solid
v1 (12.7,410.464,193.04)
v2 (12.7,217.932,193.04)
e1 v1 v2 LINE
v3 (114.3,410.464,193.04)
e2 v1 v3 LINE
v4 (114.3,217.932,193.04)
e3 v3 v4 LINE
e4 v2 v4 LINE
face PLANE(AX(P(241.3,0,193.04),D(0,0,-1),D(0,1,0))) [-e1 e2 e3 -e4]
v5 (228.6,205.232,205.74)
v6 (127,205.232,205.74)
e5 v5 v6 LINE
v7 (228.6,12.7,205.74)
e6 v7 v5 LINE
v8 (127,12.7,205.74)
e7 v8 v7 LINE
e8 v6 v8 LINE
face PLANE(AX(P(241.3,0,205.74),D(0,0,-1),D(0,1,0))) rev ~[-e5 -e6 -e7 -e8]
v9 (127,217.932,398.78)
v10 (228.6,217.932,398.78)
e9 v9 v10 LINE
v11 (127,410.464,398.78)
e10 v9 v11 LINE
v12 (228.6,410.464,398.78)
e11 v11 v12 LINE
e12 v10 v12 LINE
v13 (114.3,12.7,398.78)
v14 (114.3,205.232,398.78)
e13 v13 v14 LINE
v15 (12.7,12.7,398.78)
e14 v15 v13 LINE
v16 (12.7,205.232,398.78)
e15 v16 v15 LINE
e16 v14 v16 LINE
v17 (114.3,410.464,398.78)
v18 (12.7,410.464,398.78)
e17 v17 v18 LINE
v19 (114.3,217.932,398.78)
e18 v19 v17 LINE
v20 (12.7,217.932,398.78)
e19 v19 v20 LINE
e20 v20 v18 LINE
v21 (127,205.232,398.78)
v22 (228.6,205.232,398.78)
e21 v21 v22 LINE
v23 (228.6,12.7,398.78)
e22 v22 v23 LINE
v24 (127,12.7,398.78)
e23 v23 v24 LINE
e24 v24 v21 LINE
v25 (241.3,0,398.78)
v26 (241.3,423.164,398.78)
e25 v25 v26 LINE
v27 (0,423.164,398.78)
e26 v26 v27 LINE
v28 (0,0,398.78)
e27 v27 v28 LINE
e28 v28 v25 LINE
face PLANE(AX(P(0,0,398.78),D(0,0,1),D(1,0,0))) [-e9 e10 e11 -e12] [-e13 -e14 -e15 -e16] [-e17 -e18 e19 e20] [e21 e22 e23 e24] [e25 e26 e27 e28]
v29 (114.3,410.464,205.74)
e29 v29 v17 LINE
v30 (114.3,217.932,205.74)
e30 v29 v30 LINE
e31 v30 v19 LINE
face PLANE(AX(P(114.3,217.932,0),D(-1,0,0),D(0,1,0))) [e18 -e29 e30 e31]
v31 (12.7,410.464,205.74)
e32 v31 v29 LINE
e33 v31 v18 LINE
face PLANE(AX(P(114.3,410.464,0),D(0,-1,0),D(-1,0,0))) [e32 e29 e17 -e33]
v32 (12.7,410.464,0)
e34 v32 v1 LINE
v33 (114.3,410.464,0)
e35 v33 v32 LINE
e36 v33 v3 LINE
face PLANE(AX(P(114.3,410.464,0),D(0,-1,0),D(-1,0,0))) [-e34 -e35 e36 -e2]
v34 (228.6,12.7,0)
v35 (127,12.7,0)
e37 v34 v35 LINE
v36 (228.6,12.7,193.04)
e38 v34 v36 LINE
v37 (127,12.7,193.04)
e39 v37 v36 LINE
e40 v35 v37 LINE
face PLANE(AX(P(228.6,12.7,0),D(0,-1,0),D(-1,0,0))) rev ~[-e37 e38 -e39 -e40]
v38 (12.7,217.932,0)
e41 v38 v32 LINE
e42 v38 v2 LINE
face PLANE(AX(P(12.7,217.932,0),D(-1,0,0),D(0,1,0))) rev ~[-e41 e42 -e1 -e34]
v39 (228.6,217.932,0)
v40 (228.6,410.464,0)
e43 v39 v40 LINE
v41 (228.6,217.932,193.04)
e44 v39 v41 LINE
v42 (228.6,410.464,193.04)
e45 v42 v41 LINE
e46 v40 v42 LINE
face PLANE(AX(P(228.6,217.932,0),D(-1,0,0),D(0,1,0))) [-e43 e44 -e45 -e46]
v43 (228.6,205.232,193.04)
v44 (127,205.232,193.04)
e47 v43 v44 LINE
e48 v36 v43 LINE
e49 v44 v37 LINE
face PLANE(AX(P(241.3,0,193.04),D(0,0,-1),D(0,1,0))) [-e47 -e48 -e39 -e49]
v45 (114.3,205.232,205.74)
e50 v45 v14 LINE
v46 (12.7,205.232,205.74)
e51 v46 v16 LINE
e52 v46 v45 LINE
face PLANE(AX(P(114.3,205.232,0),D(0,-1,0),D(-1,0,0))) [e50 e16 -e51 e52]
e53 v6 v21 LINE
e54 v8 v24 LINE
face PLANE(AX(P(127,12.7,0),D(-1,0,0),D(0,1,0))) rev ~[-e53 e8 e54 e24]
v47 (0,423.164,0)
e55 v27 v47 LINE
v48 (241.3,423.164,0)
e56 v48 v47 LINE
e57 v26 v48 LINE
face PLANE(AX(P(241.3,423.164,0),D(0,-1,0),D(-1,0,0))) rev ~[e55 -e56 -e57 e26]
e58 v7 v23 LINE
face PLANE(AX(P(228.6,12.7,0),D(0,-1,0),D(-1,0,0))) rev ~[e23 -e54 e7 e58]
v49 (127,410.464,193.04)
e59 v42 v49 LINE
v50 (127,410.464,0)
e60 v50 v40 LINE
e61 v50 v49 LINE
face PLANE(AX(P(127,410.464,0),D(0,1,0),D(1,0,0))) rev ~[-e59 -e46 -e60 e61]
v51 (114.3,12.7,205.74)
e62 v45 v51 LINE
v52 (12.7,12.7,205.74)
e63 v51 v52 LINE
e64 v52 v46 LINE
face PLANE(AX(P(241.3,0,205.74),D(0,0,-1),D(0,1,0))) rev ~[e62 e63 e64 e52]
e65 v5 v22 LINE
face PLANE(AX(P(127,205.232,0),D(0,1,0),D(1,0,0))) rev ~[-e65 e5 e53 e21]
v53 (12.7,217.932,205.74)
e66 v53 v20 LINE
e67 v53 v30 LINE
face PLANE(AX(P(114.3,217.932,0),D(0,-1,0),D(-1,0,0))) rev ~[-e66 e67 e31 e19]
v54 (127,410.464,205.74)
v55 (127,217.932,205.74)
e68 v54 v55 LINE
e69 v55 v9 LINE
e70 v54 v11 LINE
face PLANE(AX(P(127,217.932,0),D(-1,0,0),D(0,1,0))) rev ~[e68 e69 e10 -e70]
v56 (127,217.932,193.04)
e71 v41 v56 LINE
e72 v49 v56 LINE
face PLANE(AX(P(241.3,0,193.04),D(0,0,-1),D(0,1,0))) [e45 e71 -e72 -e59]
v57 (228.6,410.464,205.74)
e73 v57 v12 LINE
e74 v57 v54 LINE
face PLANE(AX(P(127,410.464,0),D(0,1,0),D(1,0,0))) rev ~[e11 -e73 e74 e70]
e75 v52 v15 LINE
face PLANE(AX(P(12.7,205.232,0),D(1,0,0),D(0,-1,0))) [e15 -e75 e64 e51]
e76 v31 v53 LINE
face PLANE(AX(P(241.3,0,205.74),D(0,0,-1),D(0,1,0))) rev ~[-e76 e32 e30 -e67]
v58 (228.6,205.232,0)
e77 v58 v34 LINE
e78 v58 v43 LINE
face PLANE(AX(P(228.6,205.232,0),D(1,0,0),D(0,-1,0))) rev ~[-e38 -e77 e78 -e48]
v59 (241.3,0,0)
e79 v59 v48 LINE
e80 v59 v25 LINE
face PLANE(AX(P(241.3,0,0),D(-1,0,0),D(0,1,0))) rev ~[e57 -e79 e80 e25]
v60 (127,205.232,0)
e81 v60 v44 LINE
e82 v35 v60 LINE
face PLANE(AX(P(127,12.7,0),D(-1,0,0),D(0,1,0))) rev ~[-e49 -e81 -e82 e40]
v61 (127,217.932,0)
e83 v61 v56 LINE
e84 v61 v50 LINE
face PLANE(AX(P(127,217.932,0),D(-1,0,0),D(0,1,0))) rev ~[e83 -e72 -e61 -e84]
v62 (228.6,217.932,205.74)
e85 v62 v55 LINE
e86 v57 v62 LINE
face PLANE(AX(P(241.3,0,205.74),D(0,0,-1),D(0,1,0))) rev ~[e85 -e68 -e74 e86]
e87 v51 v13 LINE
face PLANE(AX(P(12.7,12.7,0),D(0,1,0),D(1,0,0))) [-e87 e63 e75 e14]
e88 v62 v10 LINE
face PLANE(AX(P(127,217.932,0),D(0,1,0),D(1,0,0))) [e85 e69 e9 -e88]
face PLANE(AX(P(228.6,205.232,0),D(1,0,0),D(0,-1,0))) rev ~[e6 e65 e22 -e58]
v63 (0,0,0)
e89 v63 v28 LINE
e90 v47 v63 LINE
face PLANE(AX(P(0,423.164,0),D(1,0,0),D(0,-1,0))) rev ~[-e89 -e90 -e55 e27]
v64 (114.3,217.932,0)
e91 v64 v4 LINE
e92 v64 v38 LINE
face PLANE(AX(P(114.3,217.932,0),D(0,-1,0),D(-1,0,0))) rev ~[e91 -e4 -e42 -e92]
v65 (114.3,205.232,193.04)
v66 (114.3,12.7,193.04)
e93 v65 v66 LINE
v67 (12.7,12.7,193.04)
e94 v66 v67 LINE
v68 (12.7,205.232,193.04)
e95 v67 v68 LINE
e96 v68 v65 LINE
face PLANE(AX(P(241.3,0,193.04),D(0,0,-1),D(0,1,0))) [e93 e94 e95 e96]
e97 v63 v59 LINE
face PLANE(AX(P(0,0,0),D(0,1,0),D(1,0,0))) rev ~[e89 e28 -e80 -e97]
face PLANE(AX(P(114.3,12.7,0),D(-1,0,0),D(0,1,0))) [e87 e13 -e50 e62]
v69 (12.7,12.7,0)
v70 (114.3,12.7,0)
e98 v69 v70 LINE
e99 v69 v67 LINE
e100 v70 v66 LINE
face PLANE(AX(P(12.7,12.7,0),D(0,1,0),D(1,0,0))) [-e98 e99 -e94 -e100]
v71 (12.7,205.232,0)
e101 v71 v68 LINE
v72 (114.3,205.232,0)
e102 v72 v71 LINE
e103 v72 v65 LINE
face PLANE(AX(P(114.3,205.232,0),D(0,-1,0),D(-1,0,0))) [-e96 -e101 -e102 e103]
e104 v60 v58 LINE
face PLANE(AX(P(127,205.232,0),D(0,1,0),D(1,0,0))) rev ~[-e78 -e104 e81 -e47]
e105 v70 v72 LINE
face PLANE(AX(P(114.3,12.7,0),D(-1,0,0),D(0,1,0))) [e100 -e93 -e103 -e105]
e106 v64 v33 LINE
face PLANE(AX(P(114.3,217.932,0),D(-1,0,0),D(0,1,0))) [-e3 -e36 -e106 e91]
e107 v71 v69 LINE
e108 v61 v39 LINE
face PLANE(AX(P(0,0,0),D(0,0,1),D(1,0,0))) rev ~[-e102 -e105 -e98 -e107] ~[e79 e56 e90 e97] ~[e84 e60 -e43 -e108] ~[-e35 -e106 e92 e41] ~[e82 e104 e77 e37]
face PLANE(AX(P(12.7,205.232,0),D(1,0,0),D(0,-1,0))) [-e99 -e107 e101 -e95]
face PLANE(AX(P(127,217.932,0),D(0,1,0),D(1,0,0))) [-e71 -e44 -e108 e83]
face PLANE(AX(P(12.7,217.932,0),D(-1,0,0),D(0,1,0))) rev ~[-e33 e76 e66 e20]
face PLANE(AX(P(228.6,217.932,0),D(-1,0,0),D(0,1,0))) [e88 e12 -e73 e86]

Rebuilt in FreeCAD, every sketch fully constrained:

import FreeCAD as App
import Part
import Sketcher
from FreeCAD import Vector
Q = App.Units.Quantity


def add_polygon(sketch, points):
    """Adds a closed chain of lines whose ends are joined by coincident constraints."""
    first, n = sketch.GeometryCount, len(points)
    for a, b in zip(points, points[1:] + points[:1]):
        sketch.addGeometry(Part.LineSegment(App.Vector(*a, 0), App.Vector(*b, 0)), False)
    for i in range(n):
        sketch.addConstraint(Sketcher.Constraint("Coincident", first + i, 2, first + (i + 1) % n, 1))

doc = App.newDocument("Part")
params = doc.addObject("Spreadsheet::Sheet", "Params")
for row, (alias, value) in enumerate([
    ("sketch1_width", "9.5 in"),
    ("sketch1_height", "16.66 in"),
    ("pad1_length", "15.7 in"),
    ("sketch2_height", "0.5 in"),
    ("sketch2_width", "16.66 in"),
    ("pad2_length", "9.5 in"),
], start=1):
    params.set(f"A{row}", alias)
    params.set(f"B{row}", "=" + value)
    params.setAlias(f"B{row}", alias)

body = doc.addObject("PartDesign::Body", "Body")

# Sketch on XY plane
sketch1 = body.newObject("Sketcher::SketchObject", "Sketch")
sketch1.AttachmentSupport = (doc.getObject("XY_Plane"), [""])
sketch1.MapMode = "FlatFace"
add_polygon(sketch1, [(0, 423), (0, 0), (241, 0), (241, 423)])  # lines 0-3
add_polygon(sketch1, [(13, 205), (114, 205), (114, 13), (13, 13)])  # lines 4-7
add_polygon(sketch1, [(127, 13), (127, 205), (229, 205), (229, 13)])  # lines 8-11
add_polygon(sketch1, [(13, 410), (114, 410), (114, 218), (13, 218)])  # lines 12-15
add_polygon(sketch1, [(127, 218), (127, 410), (229, 410), (229, 218)])  # lines 16-19
sketch1.addConstraint(Sketcher.Constraint("Vertical", 0))
sketch1.addConstraint(Sketcher.Constraint("Horizontal", 1))
sketch1.addConstraint(Sketcher.Constraint("Vertical", 2))
sketch1.addConstraint(Sketcher.Constraint("Horizontal", 3))
sketch1.addConstraint(Sketcher.Constraint("Horizontal", 4))
sketch1.addConstraint(Sketcher.Constraint("Vertical", 5))
sketch1.addConstraint(Sketcher.Constraint("Horizontal", 6))
sketch1.addConstraint(Sketcher.Constraint("Vertical", 7))
sketch1.addConstraint(Sketcher.Constraint("Vertical", 8))
sketch1.addConstraint(Sketcher.Constraint("Horizontal", 9))
sketch1.addConstraint(Sketcher.Constraint("Vertical", 10))
sketch1.addConstraint(Sketcher.Constraint("Horizontal", 11))
sketch1.addConstraint(Sketcher.Constraint("Horizontal", 12))
sketch1.addConstraint(Sketcher.Constraint("Vertical", 13))
sketch1.addConstraint(Sketcher.Constraint("Horizontal", 14))
sketch1.addConstraint(Sketcher.Constraint("Vertical", 15))
sketch1.addConstraint(Sketcher.Constraint("Vertical", 16))
sketch1.addConstraint(Sketcher.Constraint("Horizontal", 17))
sketch1.addConstraint(Sketcher.Constraint("Vertical", 18))
sketch1.addConstraint(Sketcher.Constraint("Horizontal", 19))
sketch1.addConstraint(Sketcher.Constraint("Coincident", 0, 2, -1, 1))
sketch1.addConstraint(Sketcher.Constraint("Horizontal", 7, 2, 8, 2))
sketch1.addConstraint(Sketcher.Constraint("Horizontal", 6, 2, 10, 2))
sketch1.addConstraint(Sketcher.Constraint("Horizontal", 15, 2, 16, 2))
sketch1.addConstraint(Sketcher.Constraint("Horizontal", 14, 2, 18, 2))
sketch1.addConstraint(Sketcher.Constraint("Vertical", 5, 2, 12, 2))
sketch1.addConstraint(Sketcher.Constraint("Vertical", 7, 2, 14, 2))
sketch1.addConstraint(Sketcher.Constraint("Vertical", 11, 2, 16, 2))
sketch1.addConstraint(Sketcher.Constraint("Vertical", 10, 2, 17, 2))
sketch1.addConstraint(Sketcher.Constraint("Equal", 6, 9))
sketch1.addConstraint(Sketcher.Constraint("Equal", 10, 13))
sketch1.addConstraint(Sketcher.Constraint("DistanceX", 1, 1, 1, 2, Q("9.5 in")))
sketch1.addConstraint(Sketcher.Constraint("DistanceY", 0, 2, 0, 1, Q("16.66 in")))
sketch1.addConstraint(Sketcher.Constraint("DistanceY", -1, 1, 5, 2, Q("0.5 in")))
sketch1.addConstraint(Sketcher.Constraint("DistanceX", -1, 1, 6, 2, Q("0.5 in")))
sketch1.addConstraint(Sketcher.Constraint("DistanceX", 4, 2, 8, 2, Q("0.5 in")))
sketch1.addConstraint(Sketcher.Constraint("DistanceX", 9, 2, 1, 2, Q("0.5 in")))
sketch1.addConstraint(Sketcher.Constraint("DistanceY", 12, 2, 3, 2, Q("0.5 in")))
sketch1.addConstraint(Sketcher.Constraint("DistanceY", 4, 2, 13, 2, Q("0.5 in")))
sketch1.setExpression("Constraints[51]", "Params.sketch1_width")
sketch1.setExpression("Constraints[52]", "Params.sketch1_height")
pad1 = body.newObject("PartDesign::Pad", "Pad")
pad1.Profile = sketch1
pad1.setExpression("Length", "Params.pad1_length")

# Sketch on YZ plane
sketch2 = body.newObject("Sketcher::SketchObject", "Sketch001")
sketch2.AttachmentSupport = (doc.getObject("YZ_Plane"), [""])
sketch2.MapMode = "FlatFace"
sketch2.AttachmentOffset = App.Placement(Vector(0, 0, 9.5 * 25.4), App.Rotation())
add_polygon(sketch2, [(0, 206), (0, 193), (423, 193), (423, 206)])  # lines 0-3
sketch2.addConstraint(Sketcher.Constraint("Vertical", 0))
sketch2.addConstraint(Sketcher.Constraint("Horizontal", 1))
sketch2.addConstraint(Sketcher.Constraint("Vertical", 2))
sketch2.addConstraint(Sketcher.Constraint("Horizontal", 3))
sketch2.addConstraint(Sketcher.Constraint("PointOnObject", 0, 2, -2))
sketch2.addConstraint(Sketcher.Constraint("DistanceY", 0, 2, 0, 1, Q("0.5 in")))
sketch2.addConstraint(Sketcher.Constraint("DistanceX", 1, 1, 1, 2, Q("16.66 in")))
sketch2.addConstraint(Sketcher.Constraint("DistanceY", -1, 1, 0, 2, Q("7.6 in")))
sketch2.setExpression("Constraints[9]", "Params.sketch2_height")
sketch2.setExpression("Constraints[10]", "Params.sketch2_width")
pad2 = body.newObject("PartDesign::Pad", "Pad001")
pad2.Profile = sketch2
pad2.setExpression("Length", "Params.pad2_length")
pad2.Reversed = True

doc.recompute()
